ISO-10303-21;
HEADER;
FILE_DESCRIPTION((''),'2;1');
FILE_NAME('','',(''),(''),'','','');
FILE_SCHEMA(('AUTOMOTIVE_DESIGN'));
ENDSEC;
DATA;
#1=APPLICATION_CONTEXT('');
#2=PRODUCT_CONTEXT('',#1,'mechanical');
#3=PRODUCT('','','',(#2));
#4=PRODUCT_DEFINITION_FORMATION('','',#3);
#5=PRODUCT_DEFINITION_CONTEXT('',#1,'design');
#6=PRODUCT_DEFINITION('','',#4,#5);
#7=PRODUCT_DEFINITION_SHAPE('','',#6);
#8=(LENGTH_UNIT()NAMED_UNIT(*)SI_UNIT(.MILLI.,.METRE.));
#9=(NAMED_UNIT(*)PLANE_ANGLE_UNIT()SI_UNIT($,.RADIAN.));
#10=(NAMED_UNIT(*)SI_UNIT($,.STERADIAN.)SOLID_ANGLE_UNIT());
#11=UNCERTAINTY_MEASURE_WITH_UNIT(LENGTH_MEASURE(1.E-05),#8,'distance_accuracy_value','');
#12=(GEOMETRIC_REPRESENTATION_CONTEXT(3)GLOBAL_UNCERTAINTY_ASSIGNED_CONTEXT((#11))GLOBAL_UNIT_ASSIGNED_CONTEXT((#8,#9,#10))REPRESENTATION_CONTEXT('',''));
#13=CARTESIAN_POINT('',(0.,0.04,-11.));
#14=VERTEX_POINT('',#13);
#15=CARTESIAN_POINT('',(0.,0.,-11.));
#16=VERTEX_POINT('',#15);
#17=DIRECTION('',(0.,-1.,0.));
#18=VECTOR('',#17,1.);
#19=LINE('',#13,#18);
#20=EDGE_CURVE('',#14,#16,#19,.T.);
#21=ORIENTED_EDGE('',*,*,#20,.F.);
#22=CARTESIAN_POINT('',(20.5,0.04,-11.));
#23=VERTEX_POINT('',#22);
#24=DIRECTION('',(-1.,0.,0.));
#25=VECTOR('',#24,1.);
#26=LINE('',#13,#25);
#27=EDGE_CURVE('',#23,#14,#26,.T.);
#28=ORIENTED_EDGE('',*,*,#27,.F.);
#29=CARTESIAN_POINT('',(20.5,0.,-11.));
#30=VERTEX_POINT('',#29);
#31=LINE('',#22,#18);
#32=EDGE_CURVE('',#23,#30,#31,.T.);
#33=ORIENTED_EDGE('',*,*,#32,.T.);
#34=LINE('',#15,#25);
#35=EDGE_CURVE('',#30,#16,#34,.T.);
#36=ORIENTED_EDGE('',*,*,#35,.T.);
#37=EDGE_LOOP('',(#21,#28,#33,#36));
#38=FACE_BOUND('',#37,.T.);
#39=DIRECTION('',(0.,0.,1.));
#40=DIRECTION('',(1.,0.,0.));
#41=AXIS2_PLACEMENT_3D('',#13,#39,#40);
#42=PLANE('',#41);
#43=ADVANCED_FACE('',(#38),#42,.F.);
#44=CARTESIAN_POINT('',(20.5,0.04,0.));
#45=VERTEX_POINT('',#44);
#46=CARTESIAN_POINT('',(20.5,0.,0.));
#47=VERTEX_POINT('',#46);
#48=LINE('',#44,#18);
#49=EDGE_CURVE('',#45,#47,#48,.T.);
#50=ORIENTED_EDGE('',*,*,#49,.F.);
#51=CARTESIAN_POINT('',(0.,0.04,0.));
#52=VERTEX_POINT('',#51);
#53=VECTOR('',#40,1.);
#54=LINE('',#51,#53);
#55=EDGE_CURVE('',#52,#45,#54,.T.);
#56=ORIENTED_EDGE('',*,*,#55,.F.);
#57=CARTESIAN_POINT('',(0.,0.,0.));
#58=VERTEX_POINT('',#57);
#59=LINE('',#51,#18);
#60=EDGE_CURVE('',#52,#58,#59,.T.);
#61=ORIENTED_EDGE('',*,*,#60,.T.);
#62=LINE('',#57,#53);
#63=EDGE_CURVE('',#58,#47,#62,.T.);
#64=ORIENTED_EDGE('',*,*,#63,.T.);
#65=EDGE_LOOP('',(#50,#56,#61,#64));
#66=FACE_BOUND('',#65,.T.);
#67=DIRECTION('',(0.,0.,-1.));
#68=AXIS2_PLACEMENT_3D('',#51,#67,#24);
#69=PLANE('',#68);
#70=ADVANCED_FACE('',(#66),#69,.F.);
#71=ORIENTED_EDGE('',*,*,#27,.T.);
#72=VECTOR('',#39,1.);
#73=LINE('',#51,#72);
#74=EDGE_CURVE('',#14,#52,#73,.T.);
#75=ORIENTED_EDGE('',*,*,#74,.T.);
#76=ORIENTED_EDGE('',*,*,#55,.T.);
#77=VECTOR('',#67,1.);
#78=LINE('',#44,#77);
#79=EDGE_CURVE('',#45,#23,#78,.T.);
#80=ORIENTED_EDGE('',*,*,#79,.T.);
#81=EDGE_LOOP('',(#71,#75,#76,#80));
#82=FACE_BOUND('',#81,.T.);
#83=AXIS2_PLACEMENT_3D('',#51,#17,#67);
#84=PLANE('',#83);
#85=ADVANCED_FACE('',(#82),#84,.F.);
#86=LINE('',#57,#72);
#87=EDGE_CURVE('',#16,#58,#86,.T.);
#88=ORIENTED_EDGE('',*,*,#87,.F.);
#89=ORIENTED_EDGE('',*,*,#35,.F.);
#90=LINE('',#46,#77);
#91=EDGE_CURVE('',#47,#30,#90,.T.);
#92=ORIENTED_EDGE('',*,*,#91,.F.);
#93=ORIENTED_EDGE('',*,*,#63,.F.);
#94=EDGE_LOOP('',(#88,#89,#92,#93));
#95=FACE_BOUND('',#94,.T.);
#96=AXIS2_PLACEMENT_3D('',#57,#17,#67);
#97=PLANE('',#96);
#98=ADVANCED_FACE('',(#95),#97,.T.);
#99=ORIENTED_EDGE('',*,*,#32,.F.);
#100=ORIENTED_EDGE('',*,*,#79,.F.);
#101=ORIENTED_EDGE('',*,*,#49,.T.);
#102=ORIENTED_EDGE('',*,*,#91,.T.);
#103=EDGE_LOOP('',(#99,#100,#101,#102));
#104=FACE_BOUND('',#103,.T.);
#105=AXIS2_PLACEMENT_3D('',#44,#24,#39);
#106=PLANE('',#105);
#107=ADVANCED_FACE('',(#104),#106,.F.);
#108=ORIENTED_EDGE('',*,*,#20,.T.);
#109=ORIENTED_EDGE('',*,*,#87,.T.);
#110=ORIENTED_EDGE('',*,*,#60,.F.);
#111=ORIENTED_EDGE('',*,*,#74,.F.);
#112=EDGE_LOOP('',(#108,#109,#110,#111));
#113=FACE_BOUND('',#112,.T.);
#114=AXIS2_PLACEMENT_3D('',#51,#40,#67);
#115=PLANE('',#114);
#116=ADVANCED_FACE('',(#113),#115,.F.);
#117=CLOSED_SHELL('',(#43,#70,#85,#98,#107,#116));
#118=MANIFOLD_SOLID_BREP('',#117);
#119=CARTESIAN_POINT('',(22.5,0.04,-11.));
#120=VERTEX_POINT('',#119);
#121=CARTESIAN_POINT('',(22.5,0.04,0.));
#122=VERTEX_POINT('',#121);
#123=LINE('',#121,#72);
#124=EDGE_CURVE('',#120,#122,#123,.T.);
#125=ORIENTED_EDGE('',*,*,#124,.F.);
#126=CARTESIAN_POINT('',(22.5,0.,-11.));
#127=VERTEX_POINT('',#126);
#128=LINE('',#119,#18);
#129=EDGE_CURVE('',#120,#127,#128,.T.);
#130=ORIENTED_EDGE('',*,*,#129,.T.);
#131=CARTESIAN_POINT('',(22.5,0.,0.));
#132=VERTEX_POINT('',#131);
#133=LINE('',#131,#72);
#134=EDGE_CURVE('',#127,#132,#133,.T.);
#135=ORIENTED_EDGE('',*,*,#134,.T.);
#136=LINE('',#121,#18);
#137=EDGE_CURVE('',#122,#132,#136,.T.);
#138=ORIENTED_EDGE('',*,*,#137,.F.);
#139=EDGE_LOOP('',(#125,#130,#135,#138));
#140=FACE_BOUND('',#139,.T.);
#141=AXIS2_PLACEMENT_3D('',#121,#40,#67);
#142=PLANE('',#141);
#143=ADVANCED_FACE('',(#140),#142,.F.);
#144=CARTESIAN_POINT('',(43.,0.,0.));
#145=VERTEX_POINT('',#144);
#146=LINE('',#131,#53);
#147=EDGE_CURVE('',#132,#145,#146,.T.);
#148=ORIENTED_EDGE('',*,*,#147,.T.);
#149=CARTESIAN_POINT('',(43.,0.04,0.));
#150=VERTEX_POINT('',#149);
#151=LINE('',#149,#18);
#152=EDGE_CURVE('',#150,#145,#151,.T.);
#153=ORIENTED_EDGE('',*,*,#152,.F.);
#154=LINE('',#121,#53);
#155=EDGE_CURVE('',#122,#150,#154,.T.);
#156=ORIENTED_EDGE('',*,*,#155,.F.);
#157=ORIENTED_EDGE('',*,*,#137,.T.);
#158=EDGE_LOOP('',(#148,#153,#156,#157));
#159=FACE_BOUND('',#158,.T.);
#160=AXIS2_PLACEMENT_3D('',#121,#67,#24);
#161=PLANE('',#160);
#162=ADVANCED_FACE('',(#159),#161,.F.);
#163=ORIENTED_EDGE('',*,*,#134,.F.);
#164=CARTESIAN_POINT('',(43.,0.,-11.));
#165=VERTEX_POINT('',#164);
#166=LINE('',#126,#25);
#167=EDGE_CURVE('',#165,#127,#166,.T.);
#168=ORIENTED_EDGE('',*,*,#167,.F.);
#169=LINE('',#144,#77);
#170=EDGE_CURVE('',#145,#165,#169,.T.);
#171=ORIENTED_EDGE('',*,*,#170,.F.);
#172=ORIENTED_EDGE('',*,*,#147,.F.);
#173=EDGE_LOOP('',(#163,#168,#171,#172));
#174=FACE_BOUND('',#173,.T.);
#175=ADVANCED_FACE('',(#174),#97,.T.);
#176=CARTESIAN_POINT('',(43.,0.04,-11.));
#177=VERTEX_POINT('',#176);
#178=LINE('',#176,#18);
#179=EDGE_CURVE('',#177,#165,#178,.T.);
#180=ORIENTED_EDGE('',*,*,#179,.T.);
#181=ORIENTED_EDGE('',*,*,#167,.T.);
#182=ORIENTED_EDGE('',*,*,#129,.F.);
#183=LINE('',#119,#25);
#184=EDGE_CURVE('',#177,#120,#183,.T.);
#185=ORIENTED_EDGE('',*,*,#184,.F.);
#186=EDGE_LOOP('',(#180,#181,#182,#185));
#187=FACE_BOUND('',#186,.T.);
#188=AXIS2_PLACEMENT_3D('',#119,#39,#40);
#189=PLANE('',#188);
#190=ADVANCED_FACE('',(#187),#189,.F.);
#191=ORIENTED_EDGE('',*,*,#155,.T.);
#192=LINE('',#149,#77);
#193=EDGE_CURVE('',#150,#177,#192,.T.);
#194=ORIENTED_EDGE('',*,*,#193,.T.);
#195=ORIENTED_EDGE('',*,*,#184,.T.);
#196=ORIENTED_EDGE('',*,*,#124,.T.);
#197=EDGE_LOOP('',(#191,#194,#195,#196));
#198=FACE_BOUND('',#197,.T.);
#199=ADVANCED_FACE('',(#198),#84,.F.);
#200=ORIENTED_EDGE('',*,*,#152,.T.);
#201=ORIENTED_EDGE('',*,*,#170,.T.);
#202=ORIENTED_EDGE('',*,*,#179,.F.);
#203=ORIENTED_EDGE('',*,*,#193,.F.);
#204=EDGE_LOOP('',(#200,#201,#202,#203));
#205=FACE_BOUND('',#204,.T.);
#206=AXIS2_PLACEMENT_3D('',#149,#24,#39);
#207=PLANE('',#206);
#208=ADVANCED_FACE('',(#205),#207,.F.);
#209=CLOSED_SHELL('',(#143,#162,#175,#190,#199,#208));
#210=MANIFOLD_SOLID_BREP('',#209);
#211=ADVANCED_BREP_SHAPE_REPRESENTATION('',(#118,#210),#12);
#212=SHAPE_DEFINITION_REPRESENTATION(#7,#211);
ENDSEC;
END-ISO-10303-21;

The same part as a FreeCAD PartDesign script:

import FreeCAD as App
import Part
import Sketcher

V = App.Vector


def add_polygon(sketch, points):
    """Adds a closed chain of lines whose ends are joined by coincident constraints."""
    first, n = sketch.GeometryCount, len(points)
    for a, b in zip(points, points[1:] + points[:1]):
        sketch.addGeometry(Part.LineSegment(App.Vector(*a, 0), App.Vector(*b, 0)), False)
    for i in range(n):
        sketch.addConstraint(Sketcher.Constraint("Coincident", first + i, 2, first + (i + 1) % n, 1))

doc = App.newDocument("Part")
body = doc.addObject("PartDesign::Body", "Body")

# Sketch on XZ plane
sketch1 = body.newObject("Sketcher::SketchObject", "Sketch")
sketch1.AttachmentSupport = (doc.getObject("XZ_Plane"), [""])
sketch1.MapMode = "FlatFace"
add_polygon(sketch1, [(0, -11), (0, 0), (20.5, 0), (20.5, -11)])  # lines 0-3
sketch1.addConstraint([
    Sketcher.Constraint("Vertical", 0),
    Sketcher.Constraint("Horizontal", 1),
    Sketcher.Constraint("Vertical", 2),
    Sketcher.Constraint("Horizontal", 3),
    Sketcher.Constraint("Coincident", 0, 2, -1, 1),
    Sketcher.Constraint("DistanceY", 0, 1, 0, 2, 11.0),
    Sketcher.Constraint("DistanceX", 1, 1, 1, 2, 20.5),
])
pad1 = body.newObject("PartDesign::Pad", "Pad")
pad1.Profile = sketch1
pad1.Length = 0.04
pad1.Reversed = True
body2 = doc.addObject("PartDesign::Body", "Body001")

# Sketch on XZ plane
sketch2 = body2.newObject("Sketcher::SketchObject", "Sketch001")
sketch2.AttachmentSupport = (doc.getObject("XZ_Plane001"), [""])
sketch2.MapMode = "FlatFace"
add_polygon(sketch2, [(22.5, -11), (22.5, 0), (43, 0), (43, -11)])  # lines 0-3
sketch2.addConstraint([
    Sketcher.Constraint("Vertical", 0),
    Sketcher.Constraint("Horizontal", 1),
    Sketcher.Constraint("Vertical", 2),
    Sketcher.Constraint("Horizontal", 3),
    Sketcher.Constraint("PointOnObject", 0, 2, -1),
    Sketcher.Constraint("DistanceY", 0, 1, 0, 2, 11.0),
    Sketcher.Constraint("DistanceX", 1, 1, 1, 2, 20.5),
    Sketcher.Constraint("DistanceX", -1, 1, 1, 2, 43.0),
])
pad2 = body2.newObject("PartDesign::Pad", "Pad001")
pad2.Profile = sketch2
pad2.Length = 0.04
pad2.Reversed = True

doc.recompute()
